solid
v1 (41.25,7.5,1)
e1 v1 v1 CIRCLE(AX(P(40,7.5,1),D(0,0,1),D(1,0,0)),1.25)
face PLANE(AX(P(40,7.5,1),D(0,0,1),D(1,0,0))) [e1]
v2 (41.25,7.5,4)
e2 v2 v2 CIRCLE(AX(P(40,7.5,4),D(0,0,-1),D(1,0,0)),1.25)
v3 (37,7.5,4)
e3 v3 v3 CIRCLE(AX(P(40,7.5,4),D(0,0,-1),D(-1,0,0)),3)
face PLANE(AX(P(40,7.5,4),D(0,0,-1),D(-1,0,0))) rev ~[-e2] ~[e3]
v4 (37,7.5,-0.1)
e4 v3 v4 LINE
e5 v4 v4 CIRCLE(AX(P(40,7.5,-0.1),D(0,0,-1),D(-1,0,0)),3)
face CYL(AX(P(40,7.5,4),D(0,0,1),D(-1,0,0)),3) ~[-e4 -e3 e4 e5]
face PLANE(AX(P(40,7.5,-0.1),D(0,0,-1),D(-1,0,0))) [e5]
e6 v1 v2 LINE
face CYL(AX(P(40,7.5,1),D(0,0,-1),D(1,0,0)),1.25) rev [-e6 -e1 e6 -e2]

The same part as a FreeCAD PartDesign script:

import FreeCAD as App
import Part
import Sketcher
Q = App.Units.Quantity

doc = App.newDocument("Part")
body = doc.addObject("PartDesign::Body", "Body")

sketch1 = body.newObject("Sketcher::SketchObject", "Sketch")
sketch1.AttachmentSupport = (doc.getObject("YZ_Plane"), [""])
sketch1.MapMode = "FlatFace"
sketch1.AttachmentOffset = App.Placement(App.Vector(0, 0, 2), App.Rotation())
sketch1.addGeometry(Part.Circle(App.Vector(6, 26, 0), App.Vector(0, 0, 1), 1.2), False)
sketch1.addConstraint([
    Sketcher.Constraint("Diameter", 0, Q("2.5 mm")),
    Sketcher.Constraint("DistanceX", -1, 1, 0, 3, Q("6 mm")),
    Sketcher.Constraint("DistanceY", -1, 1, 0, 3, Q("26 mm")),
])
pad1 = body.newObject("PartDesign::Pad", "Pad")
pad1.Profile = sketch1
pad1.Length = 5
pad1.Reversed = True
body2 = doc.addObject("PartDesign::Body", "Body001")

sketch2 = body2.newObject("Sketcher::SketchObject", "Sketch001")
sketch2.AttachmentSupport = (doc.getObject("YZ_Plane001"), [""])
sketch2.MapMode = "FlatFace"
sketch2.AttachmentOffset = App.Placement(App.Vector(0, 0, -1), App.Rotation())
sketch2.addGeometry(Part.Circle(App.Vector(6, 26, 0), App.Vector(0, 0, 1), 3), False)
sketch2.addConstraint([
    Sketcher.Constraint("Diameter", 0, Q("6 mm")),
    Sketcher.Constraint("DistanceX", -1, 1, 0, 3, Q("6 mm")),
    Sketcher.Constraint("DistanceY", -1, 1, 0, 3, Q("26 mm")),
])
pad2 = body2.newObject("PartDesign::Pad", "Pad001")
pad2.Profile = sketch2
pad2.Length = 4.1
doc.recompute()

boolean = body2.newObject("PartDesign::Boolean", "Boolean")
boolean.Type = "Cut"
boolean.addObjects([body])
body3 = doc.addObject("PartDesign::Body", "Body002")
doc.recompute()

body2.Placement = App.Placement(App.Vector(14, 1.5, 3), App.Rotation(App.Vector(0, 1, 0), 90))
boolean2 = body3.newObject("PartDesign::Boolean", "Boolean001")
boolean2.Type = "Fuse"
boolean2.addObjects([body2])

doc.recompute()
